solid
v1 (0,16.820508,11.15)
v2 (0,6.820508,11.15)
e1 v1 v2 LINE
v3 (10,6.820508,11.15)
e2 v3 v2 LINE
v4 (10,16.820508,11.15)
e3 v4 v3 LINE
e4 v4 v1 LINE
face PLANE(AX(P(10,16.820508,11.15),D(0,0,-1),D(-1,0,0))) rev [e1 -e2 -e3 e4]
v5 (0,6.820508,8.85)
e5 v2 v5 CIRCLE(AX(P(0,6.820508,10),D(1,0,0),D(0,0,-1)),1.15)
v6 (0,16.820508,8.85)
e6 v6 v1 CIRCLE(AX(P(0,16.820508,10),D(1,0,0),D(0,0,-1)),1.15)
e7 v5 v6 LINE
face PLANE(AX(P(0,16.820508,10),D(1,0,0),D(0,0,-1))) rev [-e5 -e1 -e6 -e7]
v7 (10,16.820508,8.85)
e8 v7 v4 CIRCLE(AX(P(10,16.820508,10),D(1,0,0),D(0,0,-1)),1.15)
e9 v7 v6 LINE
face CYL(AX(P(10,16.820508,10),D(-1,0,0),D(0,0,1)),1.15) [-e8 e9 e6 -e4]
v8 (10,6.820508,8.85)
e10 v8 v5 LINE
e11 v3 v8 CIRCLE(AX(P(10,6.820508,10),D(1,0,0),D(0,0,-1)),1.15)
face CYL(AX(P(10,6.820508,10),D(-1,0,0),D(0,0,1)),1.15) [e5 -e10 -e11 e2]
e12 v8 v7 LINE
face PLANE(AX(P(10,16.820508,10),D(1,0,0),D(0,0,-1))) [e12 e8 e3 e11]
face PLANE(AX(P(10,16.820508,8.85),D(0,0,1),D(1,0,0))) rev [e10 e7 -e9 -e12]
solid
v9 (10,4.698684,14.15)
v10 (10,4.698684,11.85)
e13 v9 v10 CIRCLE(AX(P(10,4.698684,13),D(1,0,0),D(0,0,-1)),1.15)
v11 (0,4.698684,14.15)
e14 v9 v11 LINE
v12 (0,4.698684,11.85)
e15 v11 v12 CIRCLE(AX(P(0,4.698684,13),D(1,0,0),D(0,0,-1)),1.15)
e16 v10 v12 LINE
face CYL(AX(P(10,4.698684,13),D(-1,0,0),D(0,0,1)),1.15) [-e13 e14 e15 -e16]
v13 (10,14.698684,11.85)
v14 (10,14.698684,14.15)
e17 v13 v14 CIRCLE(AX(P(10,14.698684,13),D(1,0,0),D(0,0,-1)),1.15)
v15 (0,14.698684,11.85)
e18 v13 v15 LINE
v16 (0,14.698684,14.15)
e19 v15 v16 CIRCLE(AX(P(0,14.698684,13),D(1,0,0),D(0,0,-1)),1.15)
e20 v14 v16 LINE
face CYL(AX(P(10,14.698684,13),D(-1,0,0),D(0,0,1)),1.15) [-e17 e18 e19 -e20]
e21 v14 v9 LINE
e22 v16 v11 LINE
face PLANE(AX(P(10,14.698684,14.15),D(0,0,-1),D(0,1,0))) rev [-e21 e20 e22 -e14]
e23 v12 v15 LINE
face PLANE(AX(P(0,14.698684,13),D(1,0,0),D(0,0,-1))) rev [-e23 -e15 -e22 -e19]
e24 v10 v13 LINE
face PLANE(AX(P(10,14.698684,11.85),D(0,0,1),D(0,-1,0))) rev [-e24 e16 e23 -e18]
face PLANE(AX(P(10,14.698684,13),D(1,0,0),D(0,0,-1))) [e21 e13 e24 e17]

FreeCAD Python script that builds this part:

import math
import FreeCAD as App
import Part
import Sketcher
from FreeCAD import Vector

doc = App.newDocument("Part")
body = doc.addObject("PartDesign::Body", "Body")

sketch1 = body.newObject("Sketcher::SketchObject", "Sketch")
sketch1.AttachmentSupport = (doc.getObject("YZ_Plane"), [""])
sketch1.MapMode = "FlatFace"
sketch1.addGeometry([
    Part.LineSegment(Vector(6.820508, 8.85, 0), Vector(16.820508, 8.85, 0)),
    Part.ArcOfCircle(Part.Circle(Vector(16.820508, 10, 0), Vector(0, 0, 1), 1.15), math.radians(-90), math.radians(90)),
    Part.LineSegment(Vector(16.820508, 11.15, 0), Vector(6.820508, 11.15, 0)),
    Part.ArcOfCircle(Part.Circle(Vector(6.820508, 10, 0), Vector(0, 0, 1), 1.15), math.radians(90), math.radians(270)),
], False)
sketch1.addConstraint([
    Sketcher.Constraint("Tangent", 0, 2, 1, 1),
    Sketcher.Constraint("Tangent", 1, 2, 2, 1),
    Sketcher.Constraint("Tangent", 2, 2, 3, 1),
    Sketcher.Constraint("Tangent", 3, 2, 0, 1),
    Sketcher.Constraint("Horizontal", 0),
    Sketcher.Constraint("Horizontal", 2),
    Sketcher.Constraint("DistanceX", 0, 1, 0, 2, 10.0),
    Sketcher.Constraint("Radius", 1, 1.15),
    Sketcher.Constraint("DistanceY", -1, 1, 1, 3, 10.0),
    Sketcher.Constraint("DistanceX", -1, 1, 1, 3, 16.820508),
])
pad1 = body.newObject("PartDesign::Pad", "Pad")
pad1.Profile = sketch1
pad1.Length = 10
body2 = doc.addObject("PartDesign::Body", "Body001")

sketch2 = body2.newObject("Sketcher::SketchObject", "Sketch001")
sketch2.AttachmentSupport = (doc.getObject("YZ_Plane001"), [""])
sketch2.MapMode = "FlatFace"
sketch2.addGeometry([
    Part.LineSegment(Vector(4.698684, 11.85, 0), Vector(14.698684, 11.85, 0)),
    Part.ArcOfCircle(Part.Circle(Vector(14.698684, 13, 0), Vector(0, 0, 1), 1.15), math.radians(-90), math.radians(90)),
    Part.LineSegment(Vector(14.698684, 14.15, 0), Vector(4.698684, 14.15, 0)),
    Part.ArcOfCircle(Part.Circle(Vector(4.698684, 13, 0), Vector(0, 0, 1), 1.15), math.radians(90), math.radians(270)),
], False)
sketch2.addConstraint([
    Sketcher.Constraint("Tangent", 0, 2, 1, 1),
    Sketcher.Constraint("Tangent", 1, 2, 2, 1),
    Sketcher.Constraint("Tangent", 2, 2, 3, 1),
    Sketcher.Constraint("Tangent", 3, 2, 0, 1),
    Sketcher.Constraint("Horizontal", 0),
    Sketcher.Constraint("Horizontal", 2),
    Sketcher.Constraint("DistanceX", 0, 1, 0, 2, 10.0),
    Sketcher.Constraint("Radius", 1, 1.15),
    Sketcher.Constraint("DistanceY", -1, 1, 1, 3, 13.0),
    Sketcher.Constraint("DistanceX", -1, 1, 1, 3, 14.698684),
])
pad2 = body2.newObject("PartDesign::Pad", "Pad001")
pad2.Profile = sketch2
pad2.Length = 10

doc.recompute()
